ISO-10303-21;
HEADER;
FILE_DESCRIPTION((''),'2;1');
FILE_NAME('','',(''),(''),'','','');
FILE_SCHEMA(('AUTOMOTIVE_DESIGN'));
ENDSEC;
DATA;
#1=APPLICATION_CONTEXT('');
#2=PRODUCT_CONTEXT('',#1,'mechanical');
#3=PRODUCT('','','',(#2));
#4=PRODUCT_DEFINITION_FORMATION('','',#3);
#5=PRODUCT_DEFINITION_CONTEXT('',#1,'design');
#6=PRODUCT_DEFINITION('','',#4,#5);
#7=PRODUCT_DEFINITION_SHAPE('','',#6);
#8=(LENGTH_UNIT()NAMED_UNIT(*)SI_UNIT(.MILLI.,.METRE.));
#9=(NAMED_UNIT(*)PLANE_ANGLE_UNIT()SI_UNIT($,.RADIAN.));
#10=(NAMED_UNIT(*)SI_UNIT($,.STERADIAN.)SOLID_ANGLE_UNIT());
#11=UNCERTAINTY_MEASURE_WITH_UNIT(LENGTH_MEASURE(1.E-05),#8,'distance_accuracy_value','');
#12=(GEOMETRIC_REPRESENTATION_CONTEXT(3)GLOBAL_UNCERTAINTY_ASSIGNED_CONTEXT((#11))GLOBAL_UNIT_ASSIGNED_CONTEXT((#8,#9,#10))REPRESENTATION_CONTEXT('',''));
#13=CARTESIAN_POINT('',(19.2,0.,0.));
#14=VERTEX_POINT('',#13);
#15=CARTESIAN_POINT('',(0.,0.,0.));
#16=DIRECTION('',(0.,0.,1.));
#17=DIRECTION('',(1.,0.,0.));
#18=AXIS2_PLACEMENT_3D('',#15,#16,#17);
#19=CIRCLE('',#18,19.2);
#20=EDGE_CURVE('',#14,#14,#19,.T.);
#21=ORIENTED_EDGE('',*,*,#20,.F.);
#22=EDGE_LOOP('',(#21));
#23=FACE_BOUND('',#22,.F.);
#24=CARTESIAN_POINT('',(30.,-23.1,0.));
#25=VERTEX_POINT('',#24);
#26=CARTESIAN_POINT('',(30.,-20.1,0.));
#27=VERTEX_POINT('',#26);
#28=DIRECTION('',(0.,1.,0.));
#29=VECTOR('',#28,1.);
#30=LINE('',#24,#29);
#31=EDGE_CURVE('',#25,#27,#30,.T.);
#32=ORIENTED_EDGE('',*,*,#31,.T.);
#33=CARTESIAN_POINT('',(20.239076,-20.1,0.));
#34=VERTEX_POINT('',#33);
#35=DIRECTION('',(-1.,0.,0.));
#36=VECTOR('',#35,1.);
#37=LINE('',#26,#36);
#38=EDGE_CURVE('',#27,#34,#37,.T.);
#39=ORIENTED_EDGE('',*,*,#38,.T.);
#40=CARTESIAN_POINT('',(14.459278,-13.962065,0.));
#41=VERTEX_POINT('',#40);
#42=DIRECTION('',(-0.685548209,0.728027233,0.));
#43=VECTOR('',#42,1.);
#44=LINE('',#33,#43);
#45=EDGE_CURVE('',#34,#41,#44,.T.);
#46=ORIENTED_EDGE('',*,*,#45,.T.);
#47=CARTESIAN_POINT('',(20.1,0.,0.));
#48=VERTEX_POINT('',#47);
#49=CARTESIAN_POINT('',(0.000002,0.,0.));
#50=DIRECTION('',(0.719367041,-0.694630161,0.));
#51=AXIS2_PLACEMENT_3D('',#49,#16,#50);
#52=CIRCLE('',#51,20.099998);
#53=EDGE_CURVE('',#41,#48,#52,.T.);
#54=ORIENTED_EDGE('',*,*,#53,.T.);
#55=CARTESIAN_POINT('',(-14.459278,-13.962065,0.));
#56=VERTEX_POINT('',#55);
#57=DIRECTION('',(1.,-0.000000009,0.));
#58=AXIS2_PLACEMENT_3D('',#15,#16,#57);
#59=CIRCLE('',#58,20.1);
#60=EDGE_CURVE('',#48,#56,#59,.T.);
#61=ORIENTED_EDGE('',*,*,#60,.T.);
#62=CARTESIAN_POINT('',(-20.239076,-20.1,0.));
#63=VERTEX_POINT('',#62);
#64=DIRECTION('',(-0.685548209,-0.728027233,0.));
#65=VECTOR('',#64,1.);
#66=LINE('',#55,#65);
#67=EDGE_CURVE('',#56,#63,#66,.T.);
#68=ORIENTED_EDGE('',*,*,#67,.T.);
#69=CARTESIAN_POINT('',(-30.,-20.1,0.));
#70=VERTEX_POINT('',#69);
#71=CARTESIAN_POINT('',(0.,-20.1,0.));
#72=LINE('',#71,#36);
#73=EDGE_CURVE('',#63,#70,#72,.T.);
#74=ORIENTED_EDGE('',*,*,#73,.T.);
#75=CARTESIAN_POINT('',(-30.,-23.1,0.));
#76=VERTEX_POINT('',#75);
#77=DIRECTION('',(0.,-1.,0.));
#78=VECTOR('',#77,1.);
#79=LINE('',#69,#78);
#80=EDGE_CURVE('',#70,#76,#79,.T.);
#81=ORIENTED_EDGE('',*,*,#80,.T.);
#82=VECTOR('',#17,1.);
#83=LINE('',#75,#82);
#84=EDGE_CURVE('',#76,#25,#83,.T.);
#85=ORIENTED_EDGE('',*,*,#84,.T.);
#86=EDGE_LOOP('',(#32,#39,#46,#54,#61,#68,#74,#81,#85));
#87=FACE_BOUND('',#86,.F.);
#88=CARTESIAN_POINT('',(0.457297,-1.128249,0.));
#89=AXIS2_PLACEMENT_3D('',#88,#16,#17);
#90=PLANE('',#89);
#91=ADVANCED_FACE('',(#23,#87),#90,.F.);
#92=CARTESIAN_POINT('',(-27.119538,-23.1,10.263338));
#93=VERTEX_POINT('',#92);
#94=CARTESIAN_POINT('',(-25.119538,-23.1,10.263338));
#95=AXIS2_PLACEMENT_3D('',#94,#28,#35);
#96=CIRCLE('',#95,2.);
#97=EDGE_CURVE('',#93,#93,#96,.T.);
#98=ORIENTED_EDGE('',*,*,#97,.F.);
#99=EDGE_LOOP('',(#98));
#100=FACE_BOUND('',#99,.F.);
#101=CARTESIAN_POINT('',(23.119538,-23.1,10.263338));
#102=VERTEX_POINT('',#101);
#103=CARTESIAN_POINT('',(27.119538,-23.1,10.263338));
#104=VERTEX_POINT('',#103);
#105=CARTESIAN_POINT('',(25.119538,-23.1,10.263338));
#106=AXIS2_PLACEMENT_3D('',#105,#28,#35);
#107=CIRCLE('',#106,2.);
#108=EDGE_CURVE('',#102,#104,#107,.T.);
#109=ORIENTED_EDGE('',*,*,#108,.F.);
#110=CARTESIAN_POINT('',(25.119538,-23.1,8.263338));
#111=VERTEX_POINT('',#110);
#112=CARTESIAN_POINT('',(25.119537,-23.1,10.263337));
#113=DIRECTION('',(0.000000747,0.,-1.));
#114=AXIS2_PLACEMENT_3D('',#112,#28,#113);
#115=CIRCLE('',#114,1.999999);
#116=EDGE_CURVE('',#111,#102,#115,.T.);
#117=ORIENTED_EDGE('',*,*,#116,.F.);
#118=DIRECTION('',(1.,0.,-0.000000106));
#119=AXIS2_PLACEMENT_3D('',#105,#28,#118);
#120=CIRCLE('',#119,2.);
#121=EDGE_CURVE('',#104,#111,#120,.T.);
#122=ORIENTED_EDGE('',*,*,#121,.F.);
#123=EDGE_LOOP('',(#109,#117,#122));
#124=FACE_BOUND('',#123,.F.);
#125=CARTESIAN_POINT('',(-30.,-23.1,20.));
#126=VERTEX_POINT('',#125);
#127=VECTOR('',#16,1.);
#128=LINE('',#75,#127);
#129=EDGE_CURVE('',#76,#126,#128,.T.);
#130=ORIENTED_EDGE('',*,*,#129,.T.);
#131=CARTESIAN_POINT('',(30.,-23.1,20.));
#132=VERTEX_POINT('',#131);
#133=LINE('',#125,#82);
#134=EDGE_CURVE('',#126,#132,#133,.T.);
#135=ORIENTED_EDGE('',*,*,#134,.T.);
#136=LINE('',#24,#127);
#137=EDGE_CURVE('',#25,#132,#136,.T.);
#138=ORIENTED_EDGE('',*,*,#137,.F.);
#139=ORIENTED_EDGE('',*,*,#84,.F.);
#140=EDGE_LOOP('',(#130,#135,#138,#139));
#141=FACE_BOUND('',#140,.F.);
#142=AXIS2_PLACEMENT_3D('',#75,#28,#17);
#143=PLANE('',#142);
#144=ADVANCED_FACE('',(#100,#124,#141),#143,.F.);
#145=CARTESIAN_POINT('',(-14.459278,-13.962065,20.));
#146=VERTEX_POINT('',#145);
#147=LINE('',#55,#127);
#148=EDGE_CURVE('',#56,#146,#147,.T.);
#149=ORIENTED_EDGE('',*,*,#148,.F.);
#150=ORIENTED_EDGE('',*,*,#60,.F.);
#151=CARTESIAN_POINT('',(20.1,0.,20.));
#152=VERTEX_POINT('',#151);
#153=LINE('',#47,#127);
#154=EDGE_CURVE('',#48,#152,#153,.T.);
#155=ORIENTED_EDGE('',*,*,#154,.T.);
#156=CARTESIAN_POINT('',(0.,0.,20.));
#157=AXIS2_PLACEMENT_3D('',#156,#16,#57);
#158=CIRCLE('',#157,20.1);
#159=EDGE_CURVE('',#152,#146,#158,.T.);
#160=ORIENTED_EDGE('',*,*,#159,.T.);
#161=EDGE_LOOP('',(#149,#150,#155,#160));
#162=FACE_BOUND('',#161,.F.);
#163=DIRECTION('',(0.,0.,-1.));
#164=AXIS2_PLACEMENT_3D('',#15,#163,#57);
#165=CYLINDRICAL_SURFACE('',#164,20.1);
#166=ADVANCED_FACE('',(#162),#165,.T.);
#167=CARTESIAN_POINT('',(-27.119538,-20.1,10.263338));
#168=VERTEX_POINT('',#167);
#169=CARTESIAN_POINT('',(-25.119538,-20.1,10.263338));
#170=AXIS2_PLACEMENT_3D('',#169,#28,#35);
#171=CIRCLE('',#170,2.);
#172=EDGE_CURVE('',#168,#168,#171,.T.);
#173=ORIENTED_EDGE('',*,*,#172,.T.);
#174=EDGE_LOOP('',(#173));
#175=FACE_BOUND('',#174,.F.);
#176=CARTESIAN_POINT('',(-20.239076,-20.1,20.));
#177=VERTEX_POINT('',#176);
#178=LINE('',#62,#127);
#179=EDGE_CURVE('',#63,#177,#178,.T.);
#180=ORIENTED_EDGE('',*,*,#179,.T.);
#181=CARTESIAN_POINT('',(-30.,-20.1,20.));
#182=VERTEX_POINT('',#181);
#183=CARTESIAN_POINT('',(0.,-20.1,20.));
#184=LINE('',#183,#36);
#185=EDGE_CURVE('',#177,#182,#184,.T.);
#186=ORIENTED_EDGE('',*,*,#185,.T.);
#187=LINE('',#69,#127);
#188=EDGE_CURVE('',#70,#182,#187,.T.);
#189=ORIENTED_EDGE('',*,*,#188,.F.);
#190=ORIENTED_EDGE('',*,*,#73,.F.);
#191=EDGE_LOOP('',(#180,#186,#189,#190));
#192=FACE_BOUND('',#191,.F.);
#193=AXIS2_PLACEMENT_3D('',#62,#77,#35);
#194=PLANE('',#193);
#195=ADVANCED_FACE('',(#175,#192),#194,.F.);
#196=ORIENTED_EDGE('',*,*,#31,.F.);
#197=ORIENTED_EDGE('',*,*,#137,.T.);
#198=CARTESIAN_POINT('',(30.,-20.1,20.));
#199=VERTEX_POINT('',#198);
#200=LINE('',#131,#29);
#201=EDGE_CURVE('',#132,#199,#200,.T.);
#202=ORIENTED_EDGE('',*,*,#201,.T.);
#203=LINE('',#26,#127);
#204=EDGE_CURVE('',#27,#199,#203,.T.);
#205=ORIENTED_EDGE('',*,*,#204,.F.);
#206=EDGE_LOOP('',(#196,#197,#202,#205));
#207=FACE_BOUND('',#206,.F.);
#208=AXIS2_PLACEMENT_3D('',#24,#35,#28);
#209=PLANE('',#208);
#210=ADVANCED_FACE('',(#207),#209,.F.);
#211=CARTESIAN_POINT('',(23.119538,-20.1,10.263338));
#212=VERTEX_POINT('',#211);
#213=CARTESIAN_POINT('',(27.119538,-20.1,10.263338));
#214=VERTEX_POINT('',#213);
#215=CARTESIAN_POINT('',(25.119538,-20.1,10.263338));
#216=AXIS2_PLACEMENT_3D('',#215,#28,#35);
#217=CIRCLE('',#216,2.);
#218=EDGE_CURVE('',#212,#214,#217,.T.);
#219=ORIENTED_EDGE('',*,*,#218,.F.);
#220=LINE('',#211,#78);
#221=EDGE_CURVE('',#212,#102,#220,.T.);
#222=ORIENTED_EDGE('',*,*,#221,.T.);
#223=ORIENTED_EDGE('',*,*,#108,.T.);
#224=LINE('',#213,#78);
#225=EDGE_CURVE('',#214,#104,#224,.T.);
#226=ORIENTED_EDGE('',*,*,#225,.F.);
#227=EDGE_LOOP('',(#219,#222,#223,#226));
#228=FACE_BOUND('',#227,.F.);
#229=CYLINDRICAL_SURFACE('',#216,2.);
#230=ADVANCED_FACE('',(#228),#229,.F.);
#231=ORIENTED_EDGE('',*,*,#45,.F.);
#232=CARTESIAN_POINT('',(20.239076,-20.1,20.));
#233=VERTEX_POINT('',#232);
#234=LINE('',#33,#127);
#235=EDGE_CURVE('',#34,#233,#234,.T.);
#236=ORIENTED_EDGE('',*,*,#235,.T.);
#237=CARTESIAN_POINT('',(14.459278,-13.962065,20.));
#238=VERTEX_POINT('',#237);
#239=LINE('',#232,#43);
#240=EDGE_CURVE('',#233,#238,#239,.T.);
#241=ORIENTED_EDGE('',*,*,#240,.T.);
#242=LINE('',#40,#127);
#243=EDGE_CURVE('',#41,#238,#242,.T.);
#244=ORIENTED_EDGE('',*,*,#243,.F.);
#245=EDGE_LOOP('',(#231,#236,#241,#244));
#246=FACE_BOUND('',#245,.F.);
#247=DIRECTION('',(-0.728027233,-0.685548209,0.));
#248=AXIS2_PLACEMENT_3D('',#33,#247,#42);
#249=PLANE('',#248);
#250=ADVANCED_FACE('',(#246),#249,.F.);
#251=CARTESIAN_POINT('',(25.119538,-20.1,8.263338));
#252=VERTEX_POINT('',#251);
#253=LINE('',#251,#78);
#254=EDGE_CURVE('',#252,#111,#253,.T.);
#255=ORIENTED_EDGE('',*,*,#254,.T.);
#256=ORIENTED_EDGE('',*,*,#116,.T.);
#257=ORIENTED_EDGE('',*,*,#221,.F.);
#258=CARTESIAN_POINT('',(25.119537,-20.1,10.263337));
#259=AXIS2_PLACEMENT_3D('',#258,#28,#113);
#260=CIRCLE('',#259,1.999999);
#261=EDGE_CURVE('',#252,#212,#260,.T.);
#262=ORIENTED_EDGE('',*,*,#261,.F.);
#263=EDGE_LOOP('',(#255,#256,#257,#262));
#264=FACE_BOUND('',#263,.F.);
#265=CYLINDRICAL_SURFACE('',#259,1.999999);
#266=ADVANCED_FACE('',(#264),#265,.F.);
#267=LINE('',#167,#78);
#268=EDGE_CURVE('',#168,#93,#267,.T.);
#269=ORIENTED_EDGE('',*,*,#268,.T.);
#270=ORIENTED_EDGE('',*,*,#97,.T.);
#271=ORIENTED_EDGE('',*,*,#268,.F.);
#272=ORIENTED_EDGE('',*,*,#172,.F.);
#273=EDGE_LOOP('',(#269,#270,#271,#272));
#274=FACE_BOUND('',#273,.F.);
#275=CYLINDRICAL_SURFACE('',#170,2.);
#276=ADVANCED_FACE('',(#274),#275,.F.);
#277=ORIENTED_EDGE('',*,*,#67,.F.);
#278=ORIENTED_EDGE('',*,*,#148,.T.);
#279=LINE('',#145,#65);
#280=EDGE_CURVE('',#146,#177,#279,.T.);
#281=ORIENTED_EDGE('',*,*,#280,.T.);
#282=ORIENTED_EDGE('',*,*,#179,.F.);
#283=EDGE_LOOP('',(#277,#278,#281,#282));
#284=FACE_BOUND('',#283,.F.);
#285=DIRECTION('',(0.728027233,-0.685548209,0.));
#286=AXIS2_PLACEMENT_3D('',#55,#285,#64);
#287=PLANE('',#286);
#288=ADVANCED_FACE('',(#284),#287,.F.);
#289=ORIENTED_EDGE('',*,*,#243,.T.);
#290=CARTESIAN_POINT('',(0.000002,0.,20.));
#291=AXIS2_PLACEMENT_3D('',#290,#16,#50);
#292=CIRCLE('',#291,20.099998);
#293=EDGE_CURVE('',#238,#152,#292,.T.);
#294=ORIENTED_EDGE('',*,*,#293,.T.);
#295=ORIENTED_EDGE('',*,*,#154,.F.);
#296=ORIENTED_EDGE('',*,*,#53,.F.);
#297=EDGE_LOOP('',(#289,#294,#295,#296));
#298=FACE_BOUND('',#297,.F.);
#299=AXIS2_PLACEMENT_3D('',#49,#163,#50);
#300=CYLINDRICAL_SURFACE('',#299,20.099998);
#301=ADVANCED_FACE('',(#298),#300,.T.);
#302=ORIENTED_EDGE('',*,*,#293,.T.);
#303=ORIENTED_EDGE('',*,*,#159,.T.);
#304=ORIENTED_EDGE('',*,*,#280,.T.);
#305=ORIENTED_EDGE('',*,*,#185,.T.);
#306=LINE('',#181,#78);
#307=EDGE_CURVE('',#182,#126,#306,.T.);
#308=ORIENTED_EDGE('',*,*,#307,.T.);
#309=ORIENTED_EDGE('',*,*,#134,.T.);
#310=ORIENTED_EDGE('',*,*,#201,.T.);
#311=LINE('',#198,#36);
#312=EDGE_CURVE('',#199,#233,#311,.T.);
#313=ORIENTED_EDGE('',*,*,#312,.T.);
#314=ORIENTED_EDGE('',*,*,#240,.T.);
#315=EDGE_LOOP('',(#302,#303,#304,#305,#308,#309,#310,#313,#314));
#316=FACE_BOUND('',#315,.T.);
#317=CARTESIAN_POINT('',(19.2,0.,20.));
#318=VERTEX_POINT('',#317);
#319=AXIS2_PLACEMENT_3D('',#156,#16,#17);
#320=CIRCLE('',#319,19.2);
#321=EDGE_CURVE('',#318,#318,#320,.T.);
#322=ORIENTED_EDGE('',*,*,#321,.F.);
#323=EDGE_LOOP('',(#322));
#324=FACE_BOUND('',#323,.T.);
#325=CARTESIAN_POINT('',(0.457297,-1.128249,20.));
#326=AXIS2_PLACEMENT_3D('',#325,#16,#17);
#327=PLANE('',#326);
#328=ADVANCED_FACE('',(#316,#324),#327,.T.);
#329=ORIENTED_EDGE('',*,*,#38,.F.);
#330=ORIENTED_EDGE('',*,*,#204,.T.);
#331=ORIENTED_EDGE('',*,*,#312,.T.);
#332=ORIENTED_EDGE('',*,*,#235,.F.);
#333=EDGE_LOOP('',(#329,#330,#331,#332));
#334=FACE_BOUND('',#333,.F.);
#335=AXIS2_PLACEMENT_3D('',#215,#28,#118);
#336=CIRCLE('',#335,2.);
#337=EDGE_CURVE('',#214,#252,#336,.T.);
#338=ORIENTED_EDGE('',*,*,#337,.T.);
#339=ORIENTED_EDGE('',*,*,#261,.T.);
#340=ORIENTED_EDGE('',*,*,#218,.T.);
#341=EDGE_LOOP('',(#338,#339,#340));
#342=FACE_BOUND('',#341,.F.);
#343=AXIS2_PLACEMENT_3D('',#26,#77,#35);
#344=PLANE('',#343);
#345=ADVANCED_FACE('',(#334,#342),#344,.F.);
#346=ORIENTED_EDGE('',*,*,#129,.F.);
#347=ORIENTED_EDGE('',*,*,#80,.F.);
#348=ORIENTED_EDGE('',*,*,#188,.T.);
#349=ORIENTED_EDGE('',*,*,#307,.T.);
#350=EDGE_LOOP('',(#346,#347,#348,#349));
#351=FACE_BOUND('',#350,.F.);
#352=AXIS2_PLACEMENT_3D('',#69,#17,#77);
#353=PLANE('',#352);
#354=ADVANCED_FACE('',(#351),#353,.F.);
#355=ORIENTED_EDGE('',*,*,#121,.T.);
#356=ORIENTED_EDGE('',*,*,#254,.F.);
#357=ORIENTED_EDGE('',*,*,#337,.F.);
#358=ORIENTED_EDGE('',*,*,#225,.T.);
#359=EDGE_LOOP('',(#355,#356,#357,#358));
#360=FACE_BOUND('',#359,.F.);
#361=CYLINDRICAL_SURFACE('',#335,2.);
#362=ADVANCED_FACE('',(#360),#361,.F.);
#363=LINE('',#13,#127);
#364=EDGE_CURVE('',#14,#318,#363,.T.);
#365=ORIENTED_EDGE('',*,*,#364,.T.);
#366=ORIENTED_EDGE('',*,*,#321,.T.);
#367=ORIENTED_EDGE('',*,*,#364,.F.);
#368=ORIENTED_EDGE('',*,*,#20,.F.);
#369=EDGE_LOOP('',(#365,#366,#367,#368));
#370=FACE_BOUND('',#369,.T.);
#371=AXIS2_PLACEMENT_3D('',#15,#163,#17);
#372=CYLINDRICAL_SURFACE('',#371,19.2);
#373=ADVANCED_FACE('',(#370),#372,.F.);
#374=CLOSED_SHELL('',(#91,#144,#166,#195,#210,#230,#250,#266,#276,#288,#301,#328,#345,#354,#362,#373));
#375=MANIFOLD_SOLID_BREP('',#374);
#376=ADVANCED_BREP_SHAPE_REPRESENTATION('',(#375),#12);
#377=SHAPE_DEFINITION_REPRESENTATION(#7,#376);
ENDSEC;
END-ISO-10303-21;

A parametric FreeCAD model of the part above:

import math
import FreeCAD as App
import Part
import Sketcher
from FreeCAD import Vector

doc = App.newDocument("Part")
params = doc.addObject("Spreadsheet::Sheet", "Params")
for row, (alias, value) in enumerate([
    ("sketch1_diameter", "38.4 mm"),
    ("sketch1_radius", "20.099998 mm"),
    ("sketch1_width", "60 mm"),
    ("sketch1_height", "3 mm"),
    ("pad1_length", "20 mm"),
    ("sketch2_diameter", "4 mm"),
    ("pocket1_length", "25 mm"),
], start=1):
    params.set(f"A{row}", alias)
    params.set(f"B{row}", "=" + value)
    params.setAlias(f"B{row}", alias)

body = doc.addObject("PartDesign::Body", "Body")

sketch1 = body.newObject("Sketcher::SketchObject", "Sketch")
sketch1.AttachmentSupport = (doc.getObject("XY_Plane"), [""])
sketch1.MapMode = "FlatFace"
sketch1.addGeometry([
    Part.ArcOfCircle(Part.Circle(Vector(0, 0, 0), Vector(0, 0, 1), 20.1), math.radians(-44), math.radians(0)),
    Part.ArcOfCircle(Part.Circle(Vector(0, 0, 0), Vector(0, 0, 1), 20.1), math.radians(0), math.radians(224)),
    Part.LineSegment(Vector(-14.5, -14, 0), Vector(-20.2, -20.1, 0)),
    Part.LineSegment(Vector(-20.2, -20.1, 0), Vector(-30, -20.1, 0)),
    Part.LineSegment(Vector(-30, -20.1, 0), Vector(-30, -23.1, 0)),
    Part.LineSegment(Vector(-30, -23.1, 0), Vector(30, -23.1, 0)),
    Part.LineSegment(Vector(30, -23.1, 0), Vector(30, -20.1, 0)),
    Part.LineSegment(Vector(30, -20.1, 0), Vector(20.2, -20.1, 0)),
    Part.LineSegment(Vector(20.2, -20.1, 0), Vector(14.5, -14, 0)),
    Part.Circle(Vector(0, 0, 0), Vector(0, 0, 1), 19.2),
], False)
sketch1.addConstraint([
    Sketcher.Constraint("Tangent", 0, 2, 1, 1),
    Sketcher.Constraint("Coincident", 1, 2, 2, 1),
    Sketcher.Constraint("Coincident", 2, 2, 3, 1),
    Sketcher.Constraint("Coincident", 3, 2, 4, 1),
    Sketcher.Constraint("Coincident", 4, 2, 5, 1),
    Sketcher.Constraint("Coincident", 5, 2, 6, 1),
    Sketcher.Constraint("Coincident", 6, 2, 7, 1),
    Sketcher.Constraint("Coincident", 7, 2, 8, 1),
    Sketcher.Constraint("Coincident", 8, 2, 0, 1),
    Sketcher.Constraint("Horizontal", 3),
    Sketcher.Constraint("Vertical", 4),
    Sketcher.Constraint("Horizontal", 5),
    Sketcher.Constraint("Vertical", 6),
    Sketcher.Constraint("Horizontal", 7),
    Sketcher.Constraint("Coincident", 0, 3, -1, 1),
    Sketcher.Constraint("Coincident", 9, 3, -1, 1),
    Sketcher.Constraint("Equal", 0, 1),
    Sketcher.Constraint("Symmetric", 3, 2, 6, 2, -2),
    Sketcher.Constraint("PointOnObject", 0, 2, -1),
    Sketcher.Constraint("Horizontal", 1, 2, 8, 2),
    Sketcher.Constraint("Equal", 3, 7),
    Sketcher.Constraint("Diameter", 9, 38.4),
    Sketcher.Constraint("Radius", 0, 20.099998),
    Sketcher.Constraint("DistanceX", 5, 1, 5, 2, 60.0),
    Sketcher.Constraint("DistanceY", 4, 2, 4, 1, 3.0),
    Sketcher.Constraint("DistanceY", 2, 2, -1, 1, 20.1),
    Sketcher.Constraint("DistanceX", 8, 2, 7, 2, 5.779798),
    Sketcher.Constraint("DistanceX", 3, 2, 3, 1, 9.760924),
])
sketch1.setExpression("Constraints[21]", "Params.sketch1_diameter")
sketch1.setExpression("Constraints[22]", "Params.sketch1_radius")
sketch1.setExpression("Constraints[23]", "Params.sketch1_width")
sketch1.setExpression("Constraints[24]", "Params.sketch1_height")
pad1 = body.newObject("PartDesign::Pad", "Pad")
pad1.Profile = sketch1
pad1.setExpression("Length", "Params.pad1_length")

sketch2 = body.newObject("Sketcher::SketchObject", "Sketch001")
sketch2.AttachmentSupport = (doc.getObject("XZ_Plane"), [""])
sketch2.MapMode = "FlatFace"
sketch2.AttachmentOffset = App.Placement(Vector(0, 0, 20.1), App.Rotation())
sketch2.addGeometry([
    Part.ArcOfCircle(Part.Circle(Vector(25.1, 10.3, 0), Vector(0, 0, 1), 2), math.radians(180), math.radians(270)),
    Part.ArcOfCircle(Part.Circle(Vector(25.1, 10.3, 0), Vector(0, 0, 1), 2), math.radians(0), math.radians(180)),
    Part.ArcOfCircle(Part.Circle(Vector(25.1, 10.3, 0), Vector(0, 0, 1), 2), math.radians(-90), math.radians(0)),
    Part.Circle(Vector(-25.1, 10.3, 0), Vector(0, 0, 1), 2),
], False)
sketch2.addConstraint([
    Sketcher.Constraint("Tangent", 0, 1, 1, 2),
    Sketcher.Constraint("Tangent", 1, 1, 2, 2),
    Sketcher.Constraint("Tangent", 2, 1, 0, 2),
    Sketcher.Constraint("Equal", 2, 3),
    Sketcher.Constraint("Symmetric", 0, 3, 3, 3, -2),
    Sketcher.Constraint("Horizontal", 3, 3, 0, 1),
    Sketcher.Constraint("Horizontal", 0, 1, 1, 1),
    Sketcher.Constraint("Vertical", 1, 3, 2, 1),
    Sketcher.Constraint("Diameter", 3, 4.0),
    Sketcher.Constraint("DistanceY", -1, 1, 2, 3, 10.263338),
    Sketcher.Constraint("DistanceX", -1, 1, 0, 1, 23.119538),
])
sketch2.setExpression("Constraints[8]", "Params.sketch2_diameter")
pocket1 = body.newObject("PartDesign::Pocket", "Pocket")
pocket1.Profile = sketch2
pocket1.setExpression("Length", "Params.pocket1_length")
pocket1.Reversed = True

doc.recompute()
